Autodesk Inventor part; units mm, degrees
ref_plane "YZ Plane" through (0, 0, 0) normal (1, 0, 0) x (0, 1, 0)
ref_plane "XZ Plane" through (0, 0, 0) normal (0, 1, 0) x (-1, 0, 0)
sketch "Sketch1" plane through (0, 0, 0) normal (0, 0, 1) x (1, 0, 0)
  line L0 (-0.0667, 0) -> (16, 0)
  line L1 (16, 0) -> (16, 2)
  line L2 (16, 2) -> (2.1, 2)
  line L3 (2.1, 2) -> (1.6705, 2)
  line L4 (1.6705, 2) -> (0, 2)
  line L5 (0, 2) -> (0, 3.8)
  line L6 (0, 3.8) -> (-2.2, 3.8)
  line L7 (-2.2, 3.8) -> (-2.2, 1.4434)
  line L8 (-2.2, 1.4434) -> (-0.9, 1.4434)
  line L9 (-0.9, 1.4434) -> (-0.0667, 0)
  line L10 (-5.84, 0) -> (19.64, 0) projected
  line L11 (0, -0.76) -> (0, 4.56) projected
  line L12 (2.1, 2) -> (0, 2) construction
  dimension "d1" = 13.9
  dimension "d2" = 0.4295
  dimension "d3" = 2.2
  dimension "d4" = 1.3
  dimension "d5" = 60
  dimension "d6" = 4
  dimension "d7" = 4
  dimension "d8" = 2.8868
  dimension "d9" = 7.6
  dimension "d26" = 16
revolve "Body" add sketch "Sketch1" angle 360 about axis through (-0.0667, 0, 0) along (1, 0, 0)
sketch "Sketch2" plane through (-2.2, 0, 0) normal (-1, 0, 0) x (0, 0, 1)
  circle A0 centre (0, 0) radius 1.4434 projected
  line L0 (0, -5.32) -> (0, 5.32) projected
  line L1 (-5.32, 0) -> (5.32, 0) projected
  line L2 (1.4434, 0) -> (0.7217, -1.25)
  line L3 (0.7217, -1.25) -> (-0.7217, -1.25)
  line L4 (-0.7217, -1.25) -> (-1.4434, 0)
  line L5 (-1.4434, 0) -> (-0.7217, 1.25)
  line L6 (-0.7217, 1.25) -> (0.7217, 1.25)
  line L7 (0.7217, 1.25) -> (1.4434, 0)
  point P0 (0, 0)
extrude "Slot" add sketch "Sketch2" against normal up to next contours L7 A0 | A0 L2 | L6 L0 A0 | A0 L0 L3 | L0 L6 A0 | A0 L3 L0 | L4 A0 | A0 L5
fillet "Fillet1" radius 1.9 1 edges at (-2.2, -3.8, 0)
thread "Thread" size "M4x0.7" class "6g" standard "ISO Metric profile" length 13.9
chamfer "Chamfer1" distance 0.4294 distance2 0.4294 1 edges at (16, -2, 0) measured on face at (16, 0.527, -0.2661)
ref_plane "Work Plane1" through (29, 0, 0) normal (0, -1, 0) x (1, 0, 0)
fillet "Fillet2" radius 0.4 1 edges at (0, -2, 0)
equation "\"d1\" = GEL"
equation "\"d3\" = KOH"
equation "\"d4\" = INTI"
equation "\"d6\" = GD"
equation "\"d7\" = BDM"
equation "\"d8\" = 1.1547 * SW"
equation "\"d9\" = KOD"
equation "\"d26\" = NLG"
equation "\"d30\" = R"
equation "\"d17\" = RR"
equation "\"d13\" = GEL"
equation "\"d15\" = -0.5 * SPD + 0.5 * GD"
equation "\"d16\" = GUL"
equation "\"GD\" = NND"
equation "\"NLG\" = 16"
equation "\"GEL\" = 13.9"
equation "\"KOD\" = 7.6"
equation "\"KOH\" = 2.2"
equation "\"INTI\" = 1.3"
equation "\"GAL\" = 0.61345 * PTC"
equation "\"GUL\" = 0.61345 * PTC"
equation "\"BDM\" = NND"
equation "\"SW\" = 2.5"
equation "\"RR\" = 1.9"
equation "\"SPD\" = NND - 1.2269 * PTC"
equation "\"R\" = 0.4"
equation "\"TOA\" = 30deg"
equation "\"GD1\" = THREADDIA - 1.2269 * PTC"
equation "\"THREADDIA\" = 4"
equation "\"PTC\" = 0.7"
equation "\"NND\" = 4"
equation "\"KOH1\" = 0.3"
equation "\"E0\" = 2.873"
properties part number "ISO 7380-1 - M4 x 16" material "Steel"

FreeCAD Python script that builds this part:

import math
import FreeCAD as App
import Part
import Sketcher
from FreeCAD import Vector
Q = App.Units.Quantity


def edges_at(feature, points):
    """Names of the edges that pass closest to the given points."""
    edges = feature.Shape.Edges
    near = lambda p: min(range(len(edges)), key=lambda i: edges[i].distToShape(Part.Vertex(*p))[0])
    return sorted({f"Edge{near(p) + 1}" for p in points})

doc = App.newDocument("Part")
body = doc.addObject("PartDesign::Body", "Body")

# Sketch on XY plane
sketch1 = doc.addObject("Sketcher::SketchObject", "Sketch")
body.addObject(sketch1)
sketch1.AttachmentSupport = (doc.XY_Plane, [""])
sketch1.MapMode = "FlatFace"
sketch1.addGeometry(Part.LineSegment(Vector(-0.9, 1.4, 0), Vector(-0.1, 0, 0)), False)
sketch1.addGeometry(Part.LineSegment(Vector(-0.1, 0, 0), Vector(16, 0, 0)), False)
sketch1.addGeometry(Part.LineSegment(Vector(16, 0, 0), Vector(16, 2, 0)), False)
sketch1.addGeometry(Part.LineSegment(Vector(16, 2, 0), Vector(0, 2, 0)), False)
sketch1.addGeometry(Part.LineSegment(Vector(0, 2, 0), Vector(0, 3.8, 0)), False)
sketch1.addGeometry(Part.LineSegment(Vector(0, 3.8, 0), Vector(-2.2, 3.8, 0)), False)
sketch1.addGeometry(Part.LineSegment(Vector(-2.2, 3.8, 0), Vector(-2.2, 1.4, 0)), False)
sketch1.addGeometry(Part.LineSegment(Vector(-2.2, 1.4, 0), Vector(-0.9, 1.4, 0)), False)
sketch1.addConstraint(Sketcher.Constraint("Coincident", 0, 2, 1, 1))
sketch1.addConstraint(Sketcher.Constraint("Coincident", 1, 2, 2, 1))
sketch1.addConstraint(Sketcher.Constraint("Coincident", 2, 2, 3, 1))
sketch1.addConstraint(Sketcher.Constraint("Coincident", 3, 2, 4, 1))
sketch1.addConstraint(Sketcher.Constraint("Coincident", 4, 2, 5, 1))
sketch1.addConstraint(Sketcher.Constraint("Coincident", 5, 2, 6, 1))
sketch1.addConstraint(Sketcher.Constraint("Coincident", 6, 2, 7, 1))
sketch1.addConstraint(Sketcher.Constraint("Coincident", 7, 2, 0, 1))
sketch1.addConstraint(Sketcher.Constraint("Horizontal", 1))
sketch1.addConstraint(Sketcher.Constraint("Vertical", 2))
sketch1.addConstraint(Sketcher.Constraint("Horizontal", 3))
sketch1.addConstraint(Sketcher.Constraint("Vertical", 4))
sketch1.addConstraint(Sketcher.Constraint("Horizontal", 5))
sketch1.addConstraint(Sketcher.Constraint("Vertical", 6))
sketch1.addConstraint(Sketcher.Constraint("Horizontal", 7))
sketch1.addConstraint(Sketcher.Constraint("PointOnObject", 0, 2, -1))
sketch1.addConstraint(Sketcher.Constraint("PointOnObject", 3, 2, -2))
sketch1.addConstraint(Sketcher.Constraint("DistanceX", 3, 2, 3, 1, Q("16 mm")))
sketch1.addConstraint(Sketcher.Constraint("DistanceX", 5, 2, 5, 1, Q("2.2 mm")))
sketch1.addConstraint(Sketcher.Constraint("DistanceX", 7, 1, 7, 2, Q("1.3 mm")))
sketch1.addConstraint(Sketcher.Constraint("DistanceY", 2, 1, 2, 2, Q("2 mm")))
sketch1.addConstraint(Sketcher.Constraint("DistanceY", 4, 1, 4, 2, Q("1.8 mm")))
sketch1.addConstraint(Sketcher.Constraint("DistanceX", 1, 1, 1, 2, Q("16.0667 mm")))
sketch1.addConstraint(Sketcher.Constraint("DistanceY", 6, 2, 6, 1, Q("2.3566 mm")))
revolution = doc.addObject("PartDesign::Revolution", "Revolution")
body.addObject(revolution)
revolution.Profile = sketch1
revolution.ReferenceAxis = (sketch1, ["H_Axis"])
revolution.Angle = 360

# Sketch on YZ plane
sketch2 = doc.addObject("Sketcher::SketchObject", "Sketch001")
body.addObject(sketch2)
sketch2.AttachmentSupport = (doc.YZ_Plane, [""])
sketch2.MapMode = "FlatFace"
sketch2.AttachmentOffset = App.Placement(Vector(0, 0, -2.2), App.Rotation())
sketch2.addGeometry(Part.LineSegment(Vector(1.2, 0.7, 0), Vector(0, 1.4, 0)), False)
sketch2.addGeometry(Part.ArcOfCircle(Part.Circle(Vector(0, 0, 0), Vector(0, 0, 1), 1.4), math.radians(30), math.radians(90)), False)
sketch2.addGeometry(Part.ArcOfCircle(Part.Circle(Vector(0, 0, 0), Vector(0, 0, 1), 1.4), math.radians(90), math.radians(150)), False)
sketch2.addGeometry(Part.LineSegment(Vector(0, 1.4, 0), Vector(-1.2, 0.7, 0)), False)
sketch2.addGeometry(Part.ArcOfCircle(Part.Circle(Vector(0, 0, 0), Vector(0, 0, 1), 1.4), math.radians(-30), math.radians(30)), False)
sketch2.addGeometry(Part.LineSegment(Vector(1.2, 0.7, 0), Vector(1.2, -0.7, 0)), False)
sketch2.addGeometry(Part.LineSegment(Vector(-1.2, 0.7, 0), Vector(-1.2, -0.7, 0)), False)
sketch2.addGeometry(Part.ArcOfCircle(Part.Circle(Vector(0, 0, 0), Vector(0, 0, 1), 1.4), math.radians(150), math.radians(210)), False)
sketch2.addGeometry(Part.LineSegment(Vector(-1.2, -0.7, 0), Vector(0, -1.4, 0)), False)
sketch2.addGeometry(Part.ArcOfCircle(Part.Circle(Vector(0, 0, 0), Vector(0, 0, 1), 1.4), math.radians(-150), math.radians(-90)), False)
sketch2.addGeometry(Part.ArcOfCircle(Part.Circle(Vector(0, 0, 0), Vector(0, 0, 1), 1.4), math.radians(-90), math.radians(-30)), False)
sketch2.addGeometry(Part.LineSegment(Vector(0, -1.4, 0), Vector(1.2, -0.7, 0)), False)
sketch2.addConstraint(Sketcher.Constraint("Coincident", 0, 1, 1, 1))
sketch2.addConstraint(Sketcher.Constraint("Coincident", 1, 2, 0, 2))
sketch2.addConstraint(Sketcher.Constraint("Coincident", 2, 1, 3, 1))
sketch2.addConstraint(Sketcher.Constraint("Coincident", 3, 2, 2, 2))
sketch2.addConstraint(Sketcher.Constraint("Coincident", 4, 1, 5, 2))
sketch2.addConstraint(Sketcher.Constraint("Coincident", 5, 1, 4, 2))
sketch2.addConstraint(Sketcher.Constraint("Coincident", 6, 1, 7, 1))
sketch2.addConstraint(Sketcher.Constraint("Coincident", 7, 2, 6, 2))
sketch2.addConstraint(Sketcher.Constraint("Coincident", 8, 1, 9, 1))
sketch2.addConstraint(Sketcher.Constraint("Coincident", 9, 2, 8, 2))
sketch2.addConstraint(Sketcher.Constraint("Coincident", 10, 1, 11, 1))
sketch2.addConstraint(Sketcher.Constraint("Coincident", 11, 2, 10, 2))
sketch2.addConstraint(Sketcher.Constraint("Vertical", 5))
sketch2.addConstraint(Sketcher.Constraint("Vertical", 6))
sketch2.addConstraint(Sketcher.Constraint("Coincident", 1, 3, -1, 1))
sketch2.addConstraint(Sketcher.Constraint("Coincident", 2, 3, -1, 1))
sketch2.addConstraint(Sketcher.Constraint("Coincident", 4, 3, -1, 1))
sketch2.addConstraint(Sketcher.Constraint("Coincident", 7, 3, -1, 1))
sketch2.addConstraint(Sketcher.Constraint("Coincident", 9, 3, -1, 1))
sketch2.addConstraint(Sketcher.Constraint("Coincident", 10, 3, -1, 1))
sketch2.addConstraint(Sketcher.Constraint("Coincident", 2, 1, 1, 2))
sketch2.addConstraint(Sketcher.Constraint("Coincident", 5, 1, 0, 1))
sketch2.addConstraint(Sketcher.Constraint("Coincident", 6, 1, 3, 2))
sketch2.addConstraint(Sketcher.Constraint("Coincident", 8, 1, 7, 2))
sketch2.addConstraint(Sketcher.Constraint("Coincident", 10, 1, 9, 2))
sketch2.addConstraint(Sketcher.Constraint("PointOnObject", 1, 2, -2))
sketch2.addConstraint(Sketcher.Constraint("PointOnObject", 9, 2, -2))
sketch2.addConstraint(Sketcher.Constraint("Parallel", 0, 8))
sketch2.addConstraint(Sketcher.Constraint("Parallel", 3, 11))
sketch2.addConstraint(Sketcher.Constraint("Angle", 0, Q("149.9996 deg")))
sketch2.addConstraint(Sketcher.Constraint("Radius", 1, Q("1.4434 mm")))
pad1 = doc.addObject("PartDesign::Pad", "Pad")
body.addObject(pad1)
pad1.Profile = sketch2
pad1.Type = "UpToFirst"
doc.recompute()

fillet = doc.addObject("PartDesign::Fillet", "Fillet")
body.addObject(fillet)
fillet.Base = (pad1, edges_at(pad1, [(-2.2, -3.8, 0)]))
fillet.Radius = 1.9
doc.recompute()

chamfer = doc.addObject("PartDesign::Chamfer", "Chamfer")
body.addObject(chamfer)
chamfer.Base = (fillet, edges_at(fillet, [(16, -2, 0)]))
chamfer.ChamferType = "Two distances"
chamfer.Size = 0.4294
chamfer.Size2 = 0.4294
doc.recompute()

fillet2 = doc.addObject("PartDesign::Fillet", "Fillet001")
body.addObject(fillet2)
fillet2.Base = (chamfer, edges_at(chamfer, [(0, -2, 0)]))
fillet2.Radius = 0.4

doc.recompute()
